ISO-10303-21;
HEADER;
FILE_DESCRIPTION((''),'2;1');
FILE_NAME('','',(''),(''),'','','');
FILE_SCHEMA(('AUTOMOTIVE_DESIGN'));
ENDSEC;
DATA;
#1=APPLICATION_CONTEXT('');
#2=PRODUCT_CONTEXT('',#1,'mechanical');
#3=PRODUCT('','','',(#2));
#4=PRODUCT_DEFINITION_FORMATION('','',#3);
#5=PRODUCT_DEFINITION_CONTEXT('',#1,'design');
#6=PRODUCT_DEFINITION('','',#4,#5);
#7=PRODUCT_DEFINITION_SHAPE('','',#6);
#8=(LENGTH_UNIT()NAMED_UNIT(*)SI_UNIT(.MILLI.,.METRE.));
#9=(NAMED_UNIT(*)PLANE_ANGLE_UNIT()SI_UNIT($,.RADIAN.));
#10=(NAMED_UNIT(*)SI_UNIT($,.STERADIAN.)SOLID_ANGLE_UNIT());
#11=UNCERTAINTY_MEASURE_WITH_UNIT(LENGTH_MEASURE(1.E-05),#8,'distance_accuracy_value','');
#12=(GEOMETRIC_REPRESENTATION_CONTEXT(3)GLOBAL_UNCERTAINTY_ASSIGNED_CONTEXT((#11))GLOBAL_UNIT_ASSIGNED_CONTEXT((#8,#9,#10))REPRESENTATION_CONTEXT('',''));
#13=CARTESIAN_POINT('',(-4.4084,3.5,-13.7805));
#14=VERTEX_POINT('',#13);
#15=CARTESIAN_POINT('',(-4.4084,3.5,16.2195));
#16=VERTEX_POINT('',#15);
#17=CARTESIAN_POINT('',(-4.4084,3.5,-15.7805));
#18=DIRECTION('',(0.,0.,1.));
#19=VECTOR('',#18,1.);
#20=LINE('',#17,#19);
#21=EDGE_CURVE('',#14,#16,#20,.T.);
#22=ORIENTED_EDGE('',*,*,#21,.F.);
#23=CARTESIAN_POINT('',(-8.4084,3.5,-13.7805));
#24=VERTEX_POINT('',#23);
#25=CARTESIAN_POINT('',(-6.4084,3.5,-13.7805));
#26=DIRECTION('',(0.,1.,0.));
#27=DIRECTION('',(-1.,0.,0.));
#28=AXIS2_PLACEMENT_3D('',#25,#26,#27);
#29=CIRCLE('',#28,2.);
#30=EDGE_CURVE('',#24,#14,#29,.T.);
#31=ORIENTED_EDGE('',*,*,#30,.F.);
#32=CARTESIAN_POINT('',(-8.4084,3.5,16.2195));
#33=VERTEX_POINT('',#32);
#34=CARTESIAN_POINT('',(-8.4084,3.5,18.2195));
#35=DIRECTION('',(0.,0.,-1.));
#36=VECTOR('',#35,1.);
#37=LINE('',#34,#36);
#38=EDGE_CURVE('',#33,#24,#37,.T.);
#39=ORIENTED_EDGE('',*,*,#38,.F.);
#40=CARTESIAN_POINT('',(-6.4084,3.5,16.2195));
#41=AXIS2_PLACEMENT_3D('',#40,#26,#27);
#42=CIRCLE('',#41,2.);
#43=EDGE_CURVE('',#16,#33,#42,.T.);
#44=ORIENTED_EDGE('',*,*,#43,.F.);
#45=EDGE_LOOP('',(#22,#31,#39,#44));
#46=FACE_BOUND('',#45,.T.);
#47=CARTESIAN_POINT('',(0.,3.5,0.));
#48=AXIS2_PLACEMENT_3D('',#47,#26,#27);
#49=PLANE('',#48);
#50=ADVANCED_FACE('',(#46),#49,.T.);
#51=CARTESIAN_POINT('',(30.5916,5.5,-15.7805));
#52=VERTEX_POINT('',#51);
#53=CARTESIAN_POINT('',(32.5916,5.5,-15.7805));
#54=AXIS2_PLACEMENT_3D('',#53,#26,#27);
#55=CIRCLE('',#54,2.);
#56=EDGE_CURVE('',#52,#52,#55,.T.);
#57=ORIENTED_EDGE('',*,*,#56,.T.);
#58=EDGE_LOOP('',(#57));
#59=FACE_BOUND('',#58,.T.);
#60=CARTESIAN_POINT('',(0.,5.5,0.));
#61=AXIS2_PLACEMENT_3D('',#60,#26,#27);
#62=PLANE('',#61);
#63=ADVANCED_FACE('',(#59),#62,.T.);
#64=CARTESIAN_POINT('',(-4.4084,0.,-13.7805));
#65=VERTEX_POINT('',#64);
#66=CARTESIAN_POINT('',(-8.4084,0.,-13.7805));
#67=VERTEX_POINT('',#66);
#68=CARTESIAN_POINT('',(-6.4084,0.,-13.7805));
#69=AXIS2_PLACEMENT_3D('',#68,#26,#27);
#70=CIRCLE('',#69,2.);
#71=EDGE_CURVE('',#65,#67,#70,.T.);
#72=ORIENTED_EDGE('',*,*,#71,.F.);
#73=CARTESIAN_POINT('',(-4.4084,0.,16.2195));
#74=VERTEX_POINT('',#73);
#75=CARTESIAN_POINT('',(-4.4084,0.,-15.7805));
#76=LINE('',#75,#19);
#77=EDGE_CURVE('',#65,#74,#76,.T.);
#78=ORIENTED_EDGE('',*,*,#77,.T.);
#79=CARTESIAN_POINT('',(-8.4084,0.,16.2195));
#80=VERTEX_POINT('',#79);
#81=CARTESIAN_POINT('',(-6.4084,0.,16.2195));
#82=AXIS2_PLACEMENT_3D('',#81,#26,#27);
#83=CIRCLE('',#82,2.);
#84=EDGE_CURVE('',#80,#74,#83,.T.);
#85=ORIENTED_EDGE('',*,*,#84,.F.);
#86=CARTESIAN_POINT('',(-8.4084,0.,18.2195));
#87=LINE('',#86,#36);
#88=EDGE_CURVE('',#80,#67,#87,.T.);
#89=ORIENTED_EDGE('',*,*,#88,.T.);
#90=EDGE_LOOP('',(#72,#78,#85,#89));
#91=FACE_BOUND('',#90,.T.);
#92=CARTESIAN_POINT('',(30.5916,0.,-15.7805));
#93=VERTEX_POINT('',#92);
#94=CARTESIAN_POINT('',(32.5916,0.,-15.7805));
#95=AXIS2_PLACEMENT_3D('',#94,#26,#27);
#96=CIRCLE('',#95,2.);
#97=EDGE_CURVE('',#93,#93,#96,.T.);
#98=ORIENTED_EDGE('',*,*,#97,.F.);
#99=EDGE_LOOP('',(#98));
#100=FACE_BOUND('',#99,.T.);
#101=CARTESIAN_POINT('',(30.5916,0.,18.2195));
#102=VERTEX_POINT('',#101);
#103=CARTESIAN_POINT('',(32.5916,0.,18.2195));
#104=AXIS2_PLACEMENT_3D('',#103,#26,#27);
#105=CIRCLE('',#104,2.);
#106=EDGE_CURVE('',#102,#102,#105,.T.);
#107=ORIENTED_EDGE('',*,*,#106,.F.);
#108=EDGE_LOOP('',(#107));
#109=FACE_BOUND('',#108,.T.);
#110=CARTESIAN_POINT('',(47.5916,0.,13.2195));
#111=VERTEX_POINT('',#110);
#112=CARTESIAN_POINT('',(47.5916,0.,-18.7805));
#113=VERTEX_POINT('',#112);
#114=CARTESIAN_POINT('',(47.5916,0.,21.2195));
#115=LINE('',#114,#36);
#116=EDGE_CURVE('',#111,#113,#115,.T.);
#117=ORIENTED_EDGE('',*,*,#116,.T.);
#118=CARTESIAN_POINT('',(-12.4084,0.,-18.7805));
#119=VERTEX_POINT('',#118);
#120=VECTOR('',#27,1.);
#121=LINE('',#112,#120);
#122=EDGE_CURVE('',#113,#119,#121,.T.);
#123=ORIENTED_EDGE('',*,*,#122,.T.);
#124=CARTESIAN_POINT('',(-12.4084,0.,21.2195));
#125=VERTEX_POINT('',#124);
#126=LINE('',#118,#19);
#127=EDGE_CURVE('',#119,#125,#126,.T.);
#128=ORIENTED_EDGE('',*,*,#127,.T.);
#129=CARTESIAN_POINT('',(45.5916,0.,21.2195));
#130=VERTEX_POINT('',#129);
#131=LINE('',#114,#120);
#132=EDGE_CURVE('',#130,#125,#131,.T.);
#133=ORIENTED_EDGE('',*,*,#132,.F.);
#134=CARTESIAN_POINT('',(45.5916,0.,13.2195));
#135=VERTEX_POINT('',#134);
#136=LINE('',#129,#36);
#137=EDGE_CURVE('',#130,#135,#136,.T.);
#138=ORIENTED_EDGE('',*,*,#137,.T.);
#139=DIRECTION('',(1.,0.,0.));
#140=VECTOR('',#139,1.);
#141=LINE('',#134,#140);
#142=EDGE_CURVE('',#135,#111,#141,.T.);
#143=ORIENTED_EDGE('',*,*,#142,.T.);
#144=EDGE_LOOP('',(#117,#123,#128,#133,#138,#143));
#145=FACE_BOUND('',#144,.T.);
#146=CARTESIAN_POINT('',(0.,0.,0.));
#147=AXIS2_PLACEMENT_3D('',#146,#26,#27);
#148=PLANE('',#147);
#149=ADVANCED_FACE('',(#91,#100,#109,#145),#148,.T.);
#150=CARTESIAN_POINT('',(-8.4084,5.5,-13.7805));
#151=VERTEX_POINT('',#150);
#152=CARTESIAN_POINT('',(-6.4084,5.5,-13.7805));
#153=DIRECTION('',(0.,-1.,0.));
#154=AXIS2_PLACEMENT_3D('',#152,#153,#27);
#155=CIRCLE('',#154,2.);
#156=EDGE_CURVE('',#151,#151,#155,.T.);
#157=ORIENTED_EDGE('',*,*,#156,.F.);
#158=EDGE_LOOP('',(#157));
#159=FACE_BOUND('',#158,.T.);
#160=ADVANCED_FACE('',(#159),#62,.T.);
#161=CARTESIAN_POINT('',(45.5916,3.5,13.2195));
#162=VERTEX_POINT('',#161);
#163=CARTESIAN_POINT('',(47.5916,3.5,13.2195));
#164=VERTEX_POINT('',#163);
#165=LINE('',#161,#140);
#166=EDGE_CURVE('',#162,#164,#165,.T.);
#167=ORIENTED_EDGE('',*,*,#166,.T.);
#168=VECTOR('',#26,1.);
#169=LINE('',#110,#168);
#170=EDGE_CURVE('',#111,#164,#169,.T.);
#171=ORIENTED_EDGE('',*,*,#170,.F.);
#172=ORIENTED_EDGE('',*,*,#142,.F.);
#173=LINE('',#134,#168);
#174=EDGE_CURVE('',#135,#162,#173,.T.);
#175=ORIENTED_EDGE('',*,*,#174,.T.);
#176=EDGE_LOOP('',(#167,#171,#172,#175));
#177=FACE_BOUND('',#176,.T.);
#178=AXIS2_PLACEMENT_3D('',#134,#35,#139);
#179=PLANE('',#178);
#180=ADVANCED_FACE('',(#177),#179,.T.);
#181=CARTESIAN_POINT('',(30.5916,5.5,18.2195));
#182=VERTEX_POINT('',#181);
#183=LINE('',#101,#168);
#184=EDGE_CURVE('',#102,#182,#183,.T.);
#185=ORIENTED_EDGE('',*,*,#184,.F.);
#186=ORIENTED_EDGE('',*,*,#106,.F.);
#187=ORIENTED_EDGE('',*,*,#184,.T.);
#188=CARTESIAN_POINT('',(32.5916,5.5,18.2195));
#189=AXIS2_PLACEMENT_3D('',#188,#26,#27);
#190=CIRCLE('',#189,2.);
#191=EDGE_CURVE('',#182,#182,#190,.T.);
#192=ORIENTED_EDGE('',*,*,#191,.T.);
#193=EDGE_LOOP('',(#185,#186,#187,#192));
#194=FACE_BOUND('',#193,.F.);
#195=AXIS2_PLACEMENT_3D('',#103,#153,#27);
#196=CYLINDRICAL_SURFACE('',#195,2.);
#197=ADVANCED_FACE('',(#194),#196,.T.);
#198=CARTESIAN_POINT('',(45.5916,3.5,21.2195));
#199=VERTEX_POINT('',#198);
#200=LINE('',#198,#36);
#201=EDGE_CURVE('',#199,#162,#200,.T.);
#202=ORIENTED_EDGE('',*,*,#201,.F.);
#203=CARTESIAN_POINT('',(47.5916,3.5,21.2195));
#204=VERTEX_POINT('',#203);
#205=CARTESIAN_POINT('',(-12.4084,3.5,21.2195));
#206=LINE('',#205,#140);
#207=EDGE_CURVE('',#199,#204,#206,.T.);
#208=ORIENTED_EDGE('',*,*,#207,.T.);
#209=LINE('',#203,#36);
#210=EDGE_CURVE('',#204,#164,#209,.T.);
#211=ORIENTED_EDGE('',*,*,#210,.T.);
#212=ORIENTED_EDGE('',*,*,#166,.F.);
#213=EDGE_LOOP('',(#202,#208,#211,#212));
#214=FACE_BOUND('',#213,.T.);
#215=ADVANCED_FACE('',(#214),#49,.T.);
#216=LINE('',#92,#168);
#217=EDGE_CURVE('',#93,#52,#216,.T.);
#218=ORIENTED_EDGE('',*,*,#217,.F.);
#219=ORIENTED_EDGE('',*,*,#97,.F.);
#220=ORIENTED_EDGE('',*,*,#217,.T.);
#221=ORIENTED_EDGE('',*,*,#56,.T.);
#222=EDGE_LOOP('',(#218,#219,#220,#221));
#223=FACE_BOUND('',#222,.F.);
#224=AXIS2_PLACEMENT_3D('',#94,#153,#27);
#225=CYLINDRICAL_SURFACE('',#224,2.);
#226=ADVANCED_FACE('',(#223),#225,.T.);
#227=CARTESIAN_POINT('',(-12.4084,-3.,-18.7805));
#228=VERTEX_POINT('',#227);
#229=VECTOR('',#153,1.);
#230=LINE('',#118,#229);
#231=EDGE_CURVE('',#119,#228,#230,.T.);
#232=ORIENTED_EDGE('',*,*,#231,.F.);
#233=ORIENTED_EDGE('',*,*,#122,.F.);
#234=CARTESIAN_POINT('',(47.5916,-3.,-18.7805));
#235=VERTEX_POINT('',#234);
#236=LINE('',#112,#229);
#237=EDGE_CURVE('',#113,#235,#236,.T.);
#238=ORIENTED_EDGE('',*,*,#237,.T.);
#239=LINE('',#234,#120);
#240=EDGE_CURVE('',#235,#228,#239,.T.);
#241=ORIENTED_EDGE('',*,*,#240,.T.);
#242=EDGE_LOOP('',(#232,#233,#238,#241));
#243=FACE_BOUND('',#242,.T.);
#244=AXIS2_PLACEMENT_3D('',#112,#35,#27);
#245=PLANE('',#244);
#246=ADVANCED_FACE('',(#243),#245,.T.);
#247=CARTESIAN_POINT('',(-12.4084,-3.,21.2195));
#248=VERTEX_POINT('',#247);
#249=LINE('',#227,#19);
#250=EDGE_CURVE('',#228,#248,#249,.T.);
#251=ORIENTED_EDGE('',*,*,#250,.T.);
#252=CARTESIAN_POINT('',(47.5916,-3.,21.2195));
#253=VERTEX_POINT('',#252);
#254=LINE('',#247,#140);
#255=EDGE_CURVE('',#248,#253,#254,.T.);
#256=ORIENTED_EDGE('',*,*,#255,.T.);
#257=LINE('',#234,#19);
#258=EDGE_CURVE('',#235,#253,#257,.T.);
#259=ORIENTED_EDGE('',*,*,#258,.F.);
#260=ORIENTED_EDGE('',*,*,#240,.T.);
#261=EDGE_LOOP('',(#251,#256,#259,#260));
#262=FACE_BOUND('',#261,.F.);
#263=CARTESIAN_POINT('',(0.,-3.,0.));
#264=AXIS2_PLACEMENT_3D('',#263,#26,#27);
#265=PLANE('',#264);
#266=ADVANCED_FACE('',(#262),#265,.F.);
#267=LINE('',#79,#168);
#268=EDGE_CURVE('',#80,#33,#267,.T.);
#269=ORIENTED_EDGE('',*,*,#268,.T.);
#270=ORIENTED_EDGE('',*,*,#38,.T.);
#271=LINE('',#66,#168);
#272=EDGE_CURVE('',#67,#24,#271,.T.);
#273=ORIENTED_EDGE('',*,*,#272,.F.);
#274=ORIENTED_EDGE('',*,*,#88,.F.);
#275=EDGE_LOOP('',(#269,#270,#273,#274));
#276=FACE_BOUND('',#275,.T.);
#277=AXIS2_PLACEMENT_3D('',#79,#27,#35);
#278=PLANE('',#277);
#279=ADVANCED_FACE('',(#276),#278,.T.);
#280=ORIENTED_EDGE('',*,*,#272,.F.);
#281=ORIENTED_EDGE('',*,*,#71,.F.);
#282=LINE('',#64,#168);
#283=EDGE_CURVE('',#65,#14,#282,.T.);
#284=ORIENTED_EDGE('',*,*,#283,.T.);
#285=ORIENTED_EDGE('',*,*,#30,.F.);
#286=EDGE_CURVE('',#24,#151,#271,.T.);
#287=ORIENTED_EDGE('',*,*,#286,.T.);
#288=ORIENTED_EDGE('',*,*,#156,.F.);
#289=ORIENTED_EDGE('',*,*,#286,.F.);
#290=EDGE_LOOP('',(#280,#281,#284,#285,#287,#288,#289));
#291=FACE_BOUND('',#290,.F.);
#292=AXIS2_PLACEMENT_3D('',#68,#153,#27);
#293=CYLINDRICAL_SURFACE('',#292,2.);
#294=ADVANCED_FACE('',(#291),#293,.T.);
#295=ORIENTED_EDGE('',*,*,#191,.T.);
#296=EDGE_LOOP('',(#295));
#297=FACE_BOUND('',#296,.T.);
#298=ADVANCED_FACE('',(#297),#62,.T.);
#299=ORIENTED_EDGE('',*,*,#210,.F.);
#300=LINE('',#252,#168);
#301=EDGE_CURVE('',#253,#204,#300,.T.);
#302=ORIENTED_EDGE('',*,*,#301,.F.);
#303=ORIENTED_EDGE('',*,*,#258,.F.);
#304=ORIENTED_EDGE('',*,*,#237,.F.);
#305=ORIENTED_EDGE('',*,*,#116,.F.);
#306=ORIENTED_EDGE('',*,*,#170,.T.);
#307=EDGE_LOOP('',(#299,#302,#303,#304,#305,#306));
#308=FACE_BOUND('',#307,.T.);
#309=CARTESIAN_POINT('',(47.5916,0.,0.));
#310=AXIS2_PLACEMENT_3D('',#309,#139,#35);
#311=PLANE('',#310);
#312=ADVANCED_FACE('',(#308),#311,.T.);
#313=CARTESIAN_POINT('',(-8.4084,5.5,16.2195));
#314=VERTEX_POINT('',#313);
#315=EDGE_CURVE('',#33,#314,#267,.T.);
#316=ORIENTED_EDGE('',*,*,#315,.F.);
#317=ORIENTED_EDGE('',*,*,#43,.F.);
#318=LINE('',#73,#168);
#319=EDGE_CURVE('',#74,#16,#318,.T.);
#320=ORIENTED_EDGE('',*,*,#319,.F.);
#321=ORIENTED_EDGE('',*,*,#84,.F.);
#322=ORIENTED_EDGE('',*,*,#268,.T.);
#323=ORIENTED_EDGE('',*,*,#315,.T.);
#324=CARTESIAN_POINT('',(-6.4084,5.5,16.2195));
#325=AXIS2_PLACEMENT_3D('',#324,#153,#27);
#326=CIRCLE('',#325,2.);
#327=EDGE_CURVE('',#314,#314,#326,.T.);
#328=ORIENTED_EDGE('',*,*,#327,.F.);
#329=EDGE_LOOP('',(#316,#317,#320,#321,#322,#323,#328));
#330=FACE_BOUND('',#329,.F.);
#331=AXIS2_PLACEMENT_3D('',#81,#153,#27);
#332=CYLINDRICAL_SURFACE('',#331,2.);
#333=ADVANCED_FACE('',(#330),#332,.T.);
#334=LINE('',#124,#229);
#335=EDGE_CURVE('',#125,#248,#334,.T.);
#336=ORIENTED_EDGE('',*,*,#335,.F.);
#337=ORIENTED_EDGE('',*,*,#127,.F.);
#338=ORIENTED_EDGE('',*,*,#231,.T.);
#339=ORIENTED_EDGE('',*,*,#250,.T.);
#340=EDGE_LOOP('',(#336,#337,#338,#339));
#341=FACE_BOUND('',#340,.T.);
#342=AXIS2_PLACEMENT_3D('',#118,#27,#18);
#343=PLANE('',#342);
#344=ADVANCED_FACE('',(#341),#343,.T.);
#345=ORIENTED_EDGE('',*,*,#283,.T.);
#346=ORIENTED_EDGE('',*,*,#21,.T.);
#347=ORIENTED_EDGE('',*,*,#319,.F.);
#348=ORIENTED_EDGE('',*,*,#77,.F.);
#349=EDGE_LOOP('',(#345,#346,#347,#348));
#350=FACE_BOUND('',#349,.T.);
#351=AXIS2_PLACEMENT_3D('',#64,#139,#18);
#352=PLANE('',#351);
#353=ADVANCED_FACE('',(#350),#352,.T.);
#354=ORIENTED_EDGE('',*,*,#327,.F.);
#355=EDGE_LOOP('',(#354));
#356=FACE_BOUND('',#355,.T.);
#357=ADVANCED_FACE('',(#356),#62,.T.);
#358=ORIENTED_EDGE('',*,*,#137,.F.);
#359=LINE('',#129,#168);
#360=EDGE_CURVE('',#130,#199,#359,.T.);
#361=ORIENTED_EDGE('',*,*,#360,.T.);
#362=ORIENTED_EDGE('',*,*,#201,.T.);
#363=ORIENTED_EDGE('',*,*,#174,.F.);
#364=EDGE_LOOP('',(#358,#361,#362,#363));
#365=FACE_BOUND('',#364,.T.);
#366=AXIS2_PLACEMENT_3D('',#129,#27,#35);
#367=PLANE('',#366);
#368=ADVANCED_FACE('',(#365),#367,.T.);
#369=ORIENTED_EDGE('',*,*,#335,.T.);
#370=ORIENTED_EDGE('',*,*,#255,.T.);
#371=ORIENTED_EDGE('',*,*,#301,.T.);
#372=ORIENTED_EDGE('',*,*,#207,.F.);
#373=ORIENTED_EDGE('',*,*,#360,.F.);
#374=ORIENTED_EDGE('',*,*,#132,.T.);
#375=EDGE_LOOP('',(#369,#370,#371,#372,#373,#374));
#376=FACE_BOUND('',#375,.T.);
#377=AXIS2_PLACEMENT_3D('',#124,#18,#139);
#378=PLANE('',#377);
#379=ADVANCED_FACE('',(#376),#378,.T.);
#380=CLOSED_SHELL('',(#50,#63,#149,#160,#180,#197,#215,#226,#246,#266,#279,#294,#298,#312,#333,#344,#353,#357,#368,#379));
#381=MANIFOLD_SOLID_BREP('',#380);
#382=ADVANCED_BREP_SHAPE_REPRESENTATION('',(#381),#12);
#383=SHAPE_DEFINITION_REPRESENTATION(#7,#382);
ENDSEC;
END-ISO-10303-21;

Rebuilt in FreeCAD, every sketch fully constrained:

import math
import FreeCAD as App
import Part
import Sketcher
from FreeCAD import Vector
Q = App.Units.Quantity


def add_polygon(sketch, points):
    """Adds a closed chain of lines whose ends are joined by coincident constraints."""
    first, n = sketch.GeometryCount, len(points)
    for a, b in zip(points, points[1:] + points[:1]):
        sketch.addGeometry(Part.LineSegment(App.Vector(*a, 0), App.Vector(*b, 0)), False)
    for i in range(n):
        sketch.addConstraint(Sketcher.Constraint("Coincident", first + i, 2, first + (i + 1) % n, 1))

doc = App.newDocument("Part")
body = doc.addObject("PartDesign::Body", "Body")

sketch1 = body.newObject("Sketcher::SketchObject", "Sketch")
sketch1.AttachmentSupport = (doc.getObject("XZ_Plane"), [""])
sketch1.MapMode = "FlatFace"
add_polygon(sketch1, [(-12, -19), (-12, 21), (48, 21), (48, -19)])
sketch1.addConstraint([
    Sketcher.Constraint("Vertical", 0),
    Sketcher.Constraint("Horizontal", 1),
    Sketcher.Constraint("Vertical", 2),
    Sketcher.Constraint("Horizontal", 3),
    Sketcher.Constraint("DistanceX", 1, 1, 1, 2, Q("60 mm")),
    Sketcher.Constraint("DistanceY", 0, 1, 0, 2, Q("40 mm")),
    Sketcher.Constraint("DistanceX", 0, 2, -1, 1, Q("12.4084 mm")),
    Sketcher.Constraint("DistanceY", -1, 1, 0, 2, Q("21.2195 mm")),
])
pad1 = body.newObject("PartDesign::Pad", "Pad")
pad1.Profile = sketch1
pad1.Length = 3

sketch2 = body.newObject("Sketcher::SketchObject", "Sketch001")
sketch2.AttachmentSupport = (doc.getObject("XZ_Plane"), [""])
sketch2.MapMode = "FlatFace"
sketch2.addGeometry([
    Part.Circle(Vector(-6.4, 16.2, 0), Vector(0, 0, 1), 2),
    Part.Circle(Vector(-6.4, -13.8, 0), Vector(0, 0, 1), 2),
    Part.Circle(Vector(32.6, 18.2, 0), Vector(0, 0, 1), 2),
    Part.Circle(Vector(32.6, -15.8, 0), Vector(0, 0, 1), 2),
], False)
sketch2.addConstraint([
    Sketcher.Constraint("Equal", 0, 1),
    Sketcher.Constraint("Equal", 1, 2),
    Sketcher.Constraint("Equal", 2, 3),
    Sketcher.Constraint("Vertical", 0, 3, 1, 3),
    Sketcher.Constraint("Vertical", 2, 3, 3, 3),
    Sketcher.Constraint("Diameter", 0, Q("4 mm")),
    Sketcher.Constraint("DistanceY", 1, 3, 0, 3, Q("30 mm")),
    Sketcher.Constraint("DistanceX", 0, 3, 2, 3, Q("39 mm")),
    Sketcher.Constraint("DistanceY", 0, 3, 2, 3, Q("2 mm")),
    Sketcher.Constraint("DistanceY", 3, 3, 2, 3, Q("34 mm")),
    Sketcher.Constraint("DistanceX", 0, 3, -1, 1, Q("6.4084 mm")),
    Sketcher.Constraint("DistanceY", -1, 1, 0, 3, Q("16.2195 mm")),
])
pad2 = body.newObject("PartDesign::Pad", "Pad001")
pad2.Profile = sketch2
pad2.Length = 5.5
pad2.Reversed = True

sketch3 = body.newObject("Sketcher::SketchObject", "Sketch002")
sketch3.AttachmentSupport = (doc.getObject("XZ_Plane"), [""])
sketch3.MapMode = "FlatFace"
add_polygon(sketch3, [(45.6, 13.2), (45.6, 21.2), (47.6, 21.2), (47.6, 13.2)])
sketch3.addGeometry(Part.LineSegment(Vector(-8.4, -13.8, 0), Vector(-8.4, 16.2, 0)), False)
sketch3.addGeometry(Part.ArcOfCircle(Part.Circle(Vector(-6.4, 16.2, 0), Vector(0, 0, 1), 2), math.radians(180), math.radians(360)), False)
sketch3.addGeometry(Part.LineSegment(Vector(-4.4, 16.2, 0), Vector(-4.4, -13.8, 0)), False)
sketch3.addGeometry(Part.ArcOfCircle(Part.Circle(Vector(-6.4, -13.8, 0), Vector(0, 0, 1), 2), math.radians(0), math.radians(180)), False)
sketch3.addConstraint([
    Sketcher.Constraint("Tangent", 4, 2, 5, 1),
    Sketcher.Constraint("Tangent", 5, 2, 6, 1),
    Sketcher.Constraint("Tangent", 6, 2, 7, 1),
    Sketcher.Constraint("Tangent", 7, 2, 4, 1),
    Sketcher.Constraint("Vertical", 0),
    Sketcher.Constraint("Horizontal", 1),
    Sketcher.Constraint("Vertical", 2),
    Sketcher.Constraint("Horizontal", 3),
    Sketcher.Constraint("Vertical", 4),
    Sketcher.Constraint("Vertical", 6),
    Sketcher.Constraint("Radius", 5, Q("2 mm")),
    Sketcher.Constraint("DistanceX", 1, 1, 1, 2, Q("2 mm")),
    Sketcher.Constraint("DistanceY", 0, 1, 0, 2, Q("8 mm")),
    Sketcher.Constraint("DistanceY", 4, 1, 4, 2, Q("30 mm")),
    Sketcher.Constraint("DistanceY", 5, 3, 0, 2, Q("5 mm")),
    Sketcher.Constraint("DistanceX", 5, 3, 0, 2, Q("52 mm")),
    Sketcher.Constraint("DistanceX", 5, 3, -1, 1, Q("6.4084 mm")),
    Sketcher.Constraint("DistanceY", -1, 1, 5, 3, Q("16.2195 mm")),
])
pad3 = body.newObject("PartDesign::Pad", "Pad002")
pad3.Profile = sketch3
pad3.Length = 3.5
pad3.Reversed = True

doc.recompute()
